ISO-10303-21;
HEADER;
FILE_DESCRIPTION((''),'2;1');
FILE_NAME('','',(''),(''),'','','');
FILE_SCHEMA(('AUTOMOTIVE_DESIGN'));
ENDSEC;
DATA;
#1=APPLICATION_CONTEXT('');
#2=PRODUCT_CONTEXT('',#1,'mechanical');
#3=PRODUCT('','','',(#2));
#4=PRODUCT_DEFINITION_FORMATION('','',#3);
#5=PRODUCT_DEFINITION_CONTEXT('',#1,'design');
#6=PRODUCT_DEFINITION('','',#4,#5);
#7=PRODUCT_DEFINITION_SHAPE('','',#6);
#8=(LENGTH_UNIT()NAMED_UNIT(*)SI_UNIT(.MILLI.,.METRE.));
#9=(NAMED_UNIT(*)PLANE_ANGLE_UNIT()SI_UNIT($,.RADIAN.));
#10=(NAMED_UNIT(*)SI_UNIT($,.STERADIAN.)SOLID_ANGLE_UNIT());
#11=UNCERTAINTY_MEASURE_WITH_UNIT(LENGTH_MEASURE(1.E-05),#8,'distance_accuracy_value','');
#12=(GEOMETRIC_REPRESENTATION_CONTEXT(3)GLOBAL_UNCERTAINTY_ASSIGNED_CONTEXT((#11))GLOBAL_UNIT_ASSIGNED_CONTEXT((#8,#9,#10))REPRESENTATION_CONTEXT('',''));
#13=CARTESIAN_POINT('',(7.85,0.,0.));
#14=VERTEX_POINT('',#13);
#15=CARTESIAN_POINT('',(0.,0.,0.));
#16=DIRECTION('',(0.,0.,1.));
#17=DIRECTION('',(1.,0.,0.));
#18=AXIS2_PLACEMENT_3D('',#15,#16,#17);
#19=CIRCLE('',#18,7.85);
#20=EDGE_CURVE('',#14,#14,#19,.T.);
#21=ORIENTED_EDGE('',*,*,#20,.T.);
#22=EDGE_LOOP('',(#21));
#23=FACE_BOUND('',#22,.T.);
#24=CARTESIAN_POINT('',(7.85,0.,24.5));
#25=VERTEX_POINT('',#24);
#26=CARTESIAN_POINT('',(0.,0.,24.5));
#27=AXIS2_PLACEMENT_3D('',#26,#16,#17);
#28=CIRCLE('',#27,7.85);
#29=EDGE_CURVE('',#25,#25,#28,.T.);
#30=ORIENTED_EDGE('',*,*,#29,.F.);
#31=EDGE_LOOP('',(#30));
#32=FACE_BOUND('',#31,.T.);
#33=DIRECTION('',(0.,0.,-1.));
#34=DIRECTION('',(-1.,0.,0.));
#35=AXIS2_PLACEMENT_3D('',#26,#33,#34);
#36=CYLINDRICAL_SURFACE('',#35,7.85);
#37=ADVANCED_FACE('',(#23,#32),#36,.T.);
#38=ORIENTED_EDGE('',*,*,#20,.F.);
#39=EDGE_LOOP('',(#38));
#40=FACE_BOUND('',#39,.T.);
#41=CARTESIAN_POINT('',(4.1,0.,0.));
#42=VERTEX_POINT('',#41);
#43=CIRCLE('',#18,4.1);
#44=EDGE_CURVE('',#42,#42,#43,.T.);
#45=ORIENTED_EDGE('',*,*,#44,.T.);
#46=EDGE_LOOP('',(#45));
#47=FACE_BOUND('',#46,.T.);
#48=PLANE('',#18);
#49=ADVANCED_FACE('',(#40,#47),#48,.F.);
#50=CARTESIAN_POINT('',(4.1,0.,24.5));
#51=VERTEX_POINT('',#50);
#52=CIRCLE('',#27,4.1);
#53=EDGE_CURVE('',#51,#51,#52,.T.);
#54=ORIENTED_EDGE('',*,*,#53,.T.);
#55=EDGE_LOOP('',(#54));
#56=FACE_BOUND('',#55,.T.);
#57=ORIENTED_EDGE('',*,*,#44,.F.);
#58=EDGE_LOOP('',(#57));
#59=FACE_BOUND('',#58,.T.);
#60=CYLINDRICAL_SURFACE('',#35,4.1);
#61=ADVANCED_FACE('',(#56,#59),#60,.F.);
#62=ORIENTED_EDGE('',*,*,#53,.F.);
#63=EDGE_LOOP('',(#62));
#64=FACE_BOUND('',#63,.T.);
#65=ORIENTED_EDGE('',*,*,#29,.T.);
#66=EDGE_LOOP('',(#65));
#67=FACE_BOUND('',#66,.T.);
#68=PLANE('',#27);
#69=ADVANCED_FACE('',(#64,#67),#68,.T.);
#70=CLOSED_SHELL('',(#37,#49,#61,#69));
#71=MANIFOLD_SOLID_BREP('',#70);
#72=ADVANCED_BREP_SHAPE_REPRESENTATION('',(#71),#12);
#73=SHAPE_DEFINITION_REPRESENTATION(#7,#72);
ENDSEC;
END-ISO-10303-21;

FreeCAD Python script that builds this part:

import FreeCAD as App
import Part
import Sketcher
Q = App.Units.Quantity

doc = App.newDocument("Part")
body = doc.addObject("PartDesign::Body", "Body")

# Sketch on XY plane
sketch1 = doc.addObject("Sketcher::SketchObject", "Sketch")
body.addObject(sketch1)
sketch1.AttachmentSupport = (doc.XY_Plane, [""])
sketch1.MapMode = "FlatFace"
sketch1.addGeometry(Part.Circle(App.Vector(0, 0, 0), App.Vector(0, 0, 1), 7.8), False)
sketch1.addGeometry(Part.Circle(App.Vector(0, 0, 0), App.Vector(0, 0, 1), 4.1), False)
sketch1.addConstraint(Sketcher.Constraint("Coincident", 0, 3, -1, 1))
sketch1.addConstraint(Sketcher.Constraint("Coincident", 1, 3, -1, 1))
sketch1.addConstraint(Sketcher.Constraint("Diameter", 0, Q("15.7 mm")))
sketch1.addConstraint(Sketcher.Constraint("Diameter", 1, Q("8.2 mm")))
pad1 = doc.addObject("PartDesign::Pad", "Pad")
body.addObject(pad1)
pad1.Profile = sketch1
pad1.Length = 24.5

doc.recompute()
